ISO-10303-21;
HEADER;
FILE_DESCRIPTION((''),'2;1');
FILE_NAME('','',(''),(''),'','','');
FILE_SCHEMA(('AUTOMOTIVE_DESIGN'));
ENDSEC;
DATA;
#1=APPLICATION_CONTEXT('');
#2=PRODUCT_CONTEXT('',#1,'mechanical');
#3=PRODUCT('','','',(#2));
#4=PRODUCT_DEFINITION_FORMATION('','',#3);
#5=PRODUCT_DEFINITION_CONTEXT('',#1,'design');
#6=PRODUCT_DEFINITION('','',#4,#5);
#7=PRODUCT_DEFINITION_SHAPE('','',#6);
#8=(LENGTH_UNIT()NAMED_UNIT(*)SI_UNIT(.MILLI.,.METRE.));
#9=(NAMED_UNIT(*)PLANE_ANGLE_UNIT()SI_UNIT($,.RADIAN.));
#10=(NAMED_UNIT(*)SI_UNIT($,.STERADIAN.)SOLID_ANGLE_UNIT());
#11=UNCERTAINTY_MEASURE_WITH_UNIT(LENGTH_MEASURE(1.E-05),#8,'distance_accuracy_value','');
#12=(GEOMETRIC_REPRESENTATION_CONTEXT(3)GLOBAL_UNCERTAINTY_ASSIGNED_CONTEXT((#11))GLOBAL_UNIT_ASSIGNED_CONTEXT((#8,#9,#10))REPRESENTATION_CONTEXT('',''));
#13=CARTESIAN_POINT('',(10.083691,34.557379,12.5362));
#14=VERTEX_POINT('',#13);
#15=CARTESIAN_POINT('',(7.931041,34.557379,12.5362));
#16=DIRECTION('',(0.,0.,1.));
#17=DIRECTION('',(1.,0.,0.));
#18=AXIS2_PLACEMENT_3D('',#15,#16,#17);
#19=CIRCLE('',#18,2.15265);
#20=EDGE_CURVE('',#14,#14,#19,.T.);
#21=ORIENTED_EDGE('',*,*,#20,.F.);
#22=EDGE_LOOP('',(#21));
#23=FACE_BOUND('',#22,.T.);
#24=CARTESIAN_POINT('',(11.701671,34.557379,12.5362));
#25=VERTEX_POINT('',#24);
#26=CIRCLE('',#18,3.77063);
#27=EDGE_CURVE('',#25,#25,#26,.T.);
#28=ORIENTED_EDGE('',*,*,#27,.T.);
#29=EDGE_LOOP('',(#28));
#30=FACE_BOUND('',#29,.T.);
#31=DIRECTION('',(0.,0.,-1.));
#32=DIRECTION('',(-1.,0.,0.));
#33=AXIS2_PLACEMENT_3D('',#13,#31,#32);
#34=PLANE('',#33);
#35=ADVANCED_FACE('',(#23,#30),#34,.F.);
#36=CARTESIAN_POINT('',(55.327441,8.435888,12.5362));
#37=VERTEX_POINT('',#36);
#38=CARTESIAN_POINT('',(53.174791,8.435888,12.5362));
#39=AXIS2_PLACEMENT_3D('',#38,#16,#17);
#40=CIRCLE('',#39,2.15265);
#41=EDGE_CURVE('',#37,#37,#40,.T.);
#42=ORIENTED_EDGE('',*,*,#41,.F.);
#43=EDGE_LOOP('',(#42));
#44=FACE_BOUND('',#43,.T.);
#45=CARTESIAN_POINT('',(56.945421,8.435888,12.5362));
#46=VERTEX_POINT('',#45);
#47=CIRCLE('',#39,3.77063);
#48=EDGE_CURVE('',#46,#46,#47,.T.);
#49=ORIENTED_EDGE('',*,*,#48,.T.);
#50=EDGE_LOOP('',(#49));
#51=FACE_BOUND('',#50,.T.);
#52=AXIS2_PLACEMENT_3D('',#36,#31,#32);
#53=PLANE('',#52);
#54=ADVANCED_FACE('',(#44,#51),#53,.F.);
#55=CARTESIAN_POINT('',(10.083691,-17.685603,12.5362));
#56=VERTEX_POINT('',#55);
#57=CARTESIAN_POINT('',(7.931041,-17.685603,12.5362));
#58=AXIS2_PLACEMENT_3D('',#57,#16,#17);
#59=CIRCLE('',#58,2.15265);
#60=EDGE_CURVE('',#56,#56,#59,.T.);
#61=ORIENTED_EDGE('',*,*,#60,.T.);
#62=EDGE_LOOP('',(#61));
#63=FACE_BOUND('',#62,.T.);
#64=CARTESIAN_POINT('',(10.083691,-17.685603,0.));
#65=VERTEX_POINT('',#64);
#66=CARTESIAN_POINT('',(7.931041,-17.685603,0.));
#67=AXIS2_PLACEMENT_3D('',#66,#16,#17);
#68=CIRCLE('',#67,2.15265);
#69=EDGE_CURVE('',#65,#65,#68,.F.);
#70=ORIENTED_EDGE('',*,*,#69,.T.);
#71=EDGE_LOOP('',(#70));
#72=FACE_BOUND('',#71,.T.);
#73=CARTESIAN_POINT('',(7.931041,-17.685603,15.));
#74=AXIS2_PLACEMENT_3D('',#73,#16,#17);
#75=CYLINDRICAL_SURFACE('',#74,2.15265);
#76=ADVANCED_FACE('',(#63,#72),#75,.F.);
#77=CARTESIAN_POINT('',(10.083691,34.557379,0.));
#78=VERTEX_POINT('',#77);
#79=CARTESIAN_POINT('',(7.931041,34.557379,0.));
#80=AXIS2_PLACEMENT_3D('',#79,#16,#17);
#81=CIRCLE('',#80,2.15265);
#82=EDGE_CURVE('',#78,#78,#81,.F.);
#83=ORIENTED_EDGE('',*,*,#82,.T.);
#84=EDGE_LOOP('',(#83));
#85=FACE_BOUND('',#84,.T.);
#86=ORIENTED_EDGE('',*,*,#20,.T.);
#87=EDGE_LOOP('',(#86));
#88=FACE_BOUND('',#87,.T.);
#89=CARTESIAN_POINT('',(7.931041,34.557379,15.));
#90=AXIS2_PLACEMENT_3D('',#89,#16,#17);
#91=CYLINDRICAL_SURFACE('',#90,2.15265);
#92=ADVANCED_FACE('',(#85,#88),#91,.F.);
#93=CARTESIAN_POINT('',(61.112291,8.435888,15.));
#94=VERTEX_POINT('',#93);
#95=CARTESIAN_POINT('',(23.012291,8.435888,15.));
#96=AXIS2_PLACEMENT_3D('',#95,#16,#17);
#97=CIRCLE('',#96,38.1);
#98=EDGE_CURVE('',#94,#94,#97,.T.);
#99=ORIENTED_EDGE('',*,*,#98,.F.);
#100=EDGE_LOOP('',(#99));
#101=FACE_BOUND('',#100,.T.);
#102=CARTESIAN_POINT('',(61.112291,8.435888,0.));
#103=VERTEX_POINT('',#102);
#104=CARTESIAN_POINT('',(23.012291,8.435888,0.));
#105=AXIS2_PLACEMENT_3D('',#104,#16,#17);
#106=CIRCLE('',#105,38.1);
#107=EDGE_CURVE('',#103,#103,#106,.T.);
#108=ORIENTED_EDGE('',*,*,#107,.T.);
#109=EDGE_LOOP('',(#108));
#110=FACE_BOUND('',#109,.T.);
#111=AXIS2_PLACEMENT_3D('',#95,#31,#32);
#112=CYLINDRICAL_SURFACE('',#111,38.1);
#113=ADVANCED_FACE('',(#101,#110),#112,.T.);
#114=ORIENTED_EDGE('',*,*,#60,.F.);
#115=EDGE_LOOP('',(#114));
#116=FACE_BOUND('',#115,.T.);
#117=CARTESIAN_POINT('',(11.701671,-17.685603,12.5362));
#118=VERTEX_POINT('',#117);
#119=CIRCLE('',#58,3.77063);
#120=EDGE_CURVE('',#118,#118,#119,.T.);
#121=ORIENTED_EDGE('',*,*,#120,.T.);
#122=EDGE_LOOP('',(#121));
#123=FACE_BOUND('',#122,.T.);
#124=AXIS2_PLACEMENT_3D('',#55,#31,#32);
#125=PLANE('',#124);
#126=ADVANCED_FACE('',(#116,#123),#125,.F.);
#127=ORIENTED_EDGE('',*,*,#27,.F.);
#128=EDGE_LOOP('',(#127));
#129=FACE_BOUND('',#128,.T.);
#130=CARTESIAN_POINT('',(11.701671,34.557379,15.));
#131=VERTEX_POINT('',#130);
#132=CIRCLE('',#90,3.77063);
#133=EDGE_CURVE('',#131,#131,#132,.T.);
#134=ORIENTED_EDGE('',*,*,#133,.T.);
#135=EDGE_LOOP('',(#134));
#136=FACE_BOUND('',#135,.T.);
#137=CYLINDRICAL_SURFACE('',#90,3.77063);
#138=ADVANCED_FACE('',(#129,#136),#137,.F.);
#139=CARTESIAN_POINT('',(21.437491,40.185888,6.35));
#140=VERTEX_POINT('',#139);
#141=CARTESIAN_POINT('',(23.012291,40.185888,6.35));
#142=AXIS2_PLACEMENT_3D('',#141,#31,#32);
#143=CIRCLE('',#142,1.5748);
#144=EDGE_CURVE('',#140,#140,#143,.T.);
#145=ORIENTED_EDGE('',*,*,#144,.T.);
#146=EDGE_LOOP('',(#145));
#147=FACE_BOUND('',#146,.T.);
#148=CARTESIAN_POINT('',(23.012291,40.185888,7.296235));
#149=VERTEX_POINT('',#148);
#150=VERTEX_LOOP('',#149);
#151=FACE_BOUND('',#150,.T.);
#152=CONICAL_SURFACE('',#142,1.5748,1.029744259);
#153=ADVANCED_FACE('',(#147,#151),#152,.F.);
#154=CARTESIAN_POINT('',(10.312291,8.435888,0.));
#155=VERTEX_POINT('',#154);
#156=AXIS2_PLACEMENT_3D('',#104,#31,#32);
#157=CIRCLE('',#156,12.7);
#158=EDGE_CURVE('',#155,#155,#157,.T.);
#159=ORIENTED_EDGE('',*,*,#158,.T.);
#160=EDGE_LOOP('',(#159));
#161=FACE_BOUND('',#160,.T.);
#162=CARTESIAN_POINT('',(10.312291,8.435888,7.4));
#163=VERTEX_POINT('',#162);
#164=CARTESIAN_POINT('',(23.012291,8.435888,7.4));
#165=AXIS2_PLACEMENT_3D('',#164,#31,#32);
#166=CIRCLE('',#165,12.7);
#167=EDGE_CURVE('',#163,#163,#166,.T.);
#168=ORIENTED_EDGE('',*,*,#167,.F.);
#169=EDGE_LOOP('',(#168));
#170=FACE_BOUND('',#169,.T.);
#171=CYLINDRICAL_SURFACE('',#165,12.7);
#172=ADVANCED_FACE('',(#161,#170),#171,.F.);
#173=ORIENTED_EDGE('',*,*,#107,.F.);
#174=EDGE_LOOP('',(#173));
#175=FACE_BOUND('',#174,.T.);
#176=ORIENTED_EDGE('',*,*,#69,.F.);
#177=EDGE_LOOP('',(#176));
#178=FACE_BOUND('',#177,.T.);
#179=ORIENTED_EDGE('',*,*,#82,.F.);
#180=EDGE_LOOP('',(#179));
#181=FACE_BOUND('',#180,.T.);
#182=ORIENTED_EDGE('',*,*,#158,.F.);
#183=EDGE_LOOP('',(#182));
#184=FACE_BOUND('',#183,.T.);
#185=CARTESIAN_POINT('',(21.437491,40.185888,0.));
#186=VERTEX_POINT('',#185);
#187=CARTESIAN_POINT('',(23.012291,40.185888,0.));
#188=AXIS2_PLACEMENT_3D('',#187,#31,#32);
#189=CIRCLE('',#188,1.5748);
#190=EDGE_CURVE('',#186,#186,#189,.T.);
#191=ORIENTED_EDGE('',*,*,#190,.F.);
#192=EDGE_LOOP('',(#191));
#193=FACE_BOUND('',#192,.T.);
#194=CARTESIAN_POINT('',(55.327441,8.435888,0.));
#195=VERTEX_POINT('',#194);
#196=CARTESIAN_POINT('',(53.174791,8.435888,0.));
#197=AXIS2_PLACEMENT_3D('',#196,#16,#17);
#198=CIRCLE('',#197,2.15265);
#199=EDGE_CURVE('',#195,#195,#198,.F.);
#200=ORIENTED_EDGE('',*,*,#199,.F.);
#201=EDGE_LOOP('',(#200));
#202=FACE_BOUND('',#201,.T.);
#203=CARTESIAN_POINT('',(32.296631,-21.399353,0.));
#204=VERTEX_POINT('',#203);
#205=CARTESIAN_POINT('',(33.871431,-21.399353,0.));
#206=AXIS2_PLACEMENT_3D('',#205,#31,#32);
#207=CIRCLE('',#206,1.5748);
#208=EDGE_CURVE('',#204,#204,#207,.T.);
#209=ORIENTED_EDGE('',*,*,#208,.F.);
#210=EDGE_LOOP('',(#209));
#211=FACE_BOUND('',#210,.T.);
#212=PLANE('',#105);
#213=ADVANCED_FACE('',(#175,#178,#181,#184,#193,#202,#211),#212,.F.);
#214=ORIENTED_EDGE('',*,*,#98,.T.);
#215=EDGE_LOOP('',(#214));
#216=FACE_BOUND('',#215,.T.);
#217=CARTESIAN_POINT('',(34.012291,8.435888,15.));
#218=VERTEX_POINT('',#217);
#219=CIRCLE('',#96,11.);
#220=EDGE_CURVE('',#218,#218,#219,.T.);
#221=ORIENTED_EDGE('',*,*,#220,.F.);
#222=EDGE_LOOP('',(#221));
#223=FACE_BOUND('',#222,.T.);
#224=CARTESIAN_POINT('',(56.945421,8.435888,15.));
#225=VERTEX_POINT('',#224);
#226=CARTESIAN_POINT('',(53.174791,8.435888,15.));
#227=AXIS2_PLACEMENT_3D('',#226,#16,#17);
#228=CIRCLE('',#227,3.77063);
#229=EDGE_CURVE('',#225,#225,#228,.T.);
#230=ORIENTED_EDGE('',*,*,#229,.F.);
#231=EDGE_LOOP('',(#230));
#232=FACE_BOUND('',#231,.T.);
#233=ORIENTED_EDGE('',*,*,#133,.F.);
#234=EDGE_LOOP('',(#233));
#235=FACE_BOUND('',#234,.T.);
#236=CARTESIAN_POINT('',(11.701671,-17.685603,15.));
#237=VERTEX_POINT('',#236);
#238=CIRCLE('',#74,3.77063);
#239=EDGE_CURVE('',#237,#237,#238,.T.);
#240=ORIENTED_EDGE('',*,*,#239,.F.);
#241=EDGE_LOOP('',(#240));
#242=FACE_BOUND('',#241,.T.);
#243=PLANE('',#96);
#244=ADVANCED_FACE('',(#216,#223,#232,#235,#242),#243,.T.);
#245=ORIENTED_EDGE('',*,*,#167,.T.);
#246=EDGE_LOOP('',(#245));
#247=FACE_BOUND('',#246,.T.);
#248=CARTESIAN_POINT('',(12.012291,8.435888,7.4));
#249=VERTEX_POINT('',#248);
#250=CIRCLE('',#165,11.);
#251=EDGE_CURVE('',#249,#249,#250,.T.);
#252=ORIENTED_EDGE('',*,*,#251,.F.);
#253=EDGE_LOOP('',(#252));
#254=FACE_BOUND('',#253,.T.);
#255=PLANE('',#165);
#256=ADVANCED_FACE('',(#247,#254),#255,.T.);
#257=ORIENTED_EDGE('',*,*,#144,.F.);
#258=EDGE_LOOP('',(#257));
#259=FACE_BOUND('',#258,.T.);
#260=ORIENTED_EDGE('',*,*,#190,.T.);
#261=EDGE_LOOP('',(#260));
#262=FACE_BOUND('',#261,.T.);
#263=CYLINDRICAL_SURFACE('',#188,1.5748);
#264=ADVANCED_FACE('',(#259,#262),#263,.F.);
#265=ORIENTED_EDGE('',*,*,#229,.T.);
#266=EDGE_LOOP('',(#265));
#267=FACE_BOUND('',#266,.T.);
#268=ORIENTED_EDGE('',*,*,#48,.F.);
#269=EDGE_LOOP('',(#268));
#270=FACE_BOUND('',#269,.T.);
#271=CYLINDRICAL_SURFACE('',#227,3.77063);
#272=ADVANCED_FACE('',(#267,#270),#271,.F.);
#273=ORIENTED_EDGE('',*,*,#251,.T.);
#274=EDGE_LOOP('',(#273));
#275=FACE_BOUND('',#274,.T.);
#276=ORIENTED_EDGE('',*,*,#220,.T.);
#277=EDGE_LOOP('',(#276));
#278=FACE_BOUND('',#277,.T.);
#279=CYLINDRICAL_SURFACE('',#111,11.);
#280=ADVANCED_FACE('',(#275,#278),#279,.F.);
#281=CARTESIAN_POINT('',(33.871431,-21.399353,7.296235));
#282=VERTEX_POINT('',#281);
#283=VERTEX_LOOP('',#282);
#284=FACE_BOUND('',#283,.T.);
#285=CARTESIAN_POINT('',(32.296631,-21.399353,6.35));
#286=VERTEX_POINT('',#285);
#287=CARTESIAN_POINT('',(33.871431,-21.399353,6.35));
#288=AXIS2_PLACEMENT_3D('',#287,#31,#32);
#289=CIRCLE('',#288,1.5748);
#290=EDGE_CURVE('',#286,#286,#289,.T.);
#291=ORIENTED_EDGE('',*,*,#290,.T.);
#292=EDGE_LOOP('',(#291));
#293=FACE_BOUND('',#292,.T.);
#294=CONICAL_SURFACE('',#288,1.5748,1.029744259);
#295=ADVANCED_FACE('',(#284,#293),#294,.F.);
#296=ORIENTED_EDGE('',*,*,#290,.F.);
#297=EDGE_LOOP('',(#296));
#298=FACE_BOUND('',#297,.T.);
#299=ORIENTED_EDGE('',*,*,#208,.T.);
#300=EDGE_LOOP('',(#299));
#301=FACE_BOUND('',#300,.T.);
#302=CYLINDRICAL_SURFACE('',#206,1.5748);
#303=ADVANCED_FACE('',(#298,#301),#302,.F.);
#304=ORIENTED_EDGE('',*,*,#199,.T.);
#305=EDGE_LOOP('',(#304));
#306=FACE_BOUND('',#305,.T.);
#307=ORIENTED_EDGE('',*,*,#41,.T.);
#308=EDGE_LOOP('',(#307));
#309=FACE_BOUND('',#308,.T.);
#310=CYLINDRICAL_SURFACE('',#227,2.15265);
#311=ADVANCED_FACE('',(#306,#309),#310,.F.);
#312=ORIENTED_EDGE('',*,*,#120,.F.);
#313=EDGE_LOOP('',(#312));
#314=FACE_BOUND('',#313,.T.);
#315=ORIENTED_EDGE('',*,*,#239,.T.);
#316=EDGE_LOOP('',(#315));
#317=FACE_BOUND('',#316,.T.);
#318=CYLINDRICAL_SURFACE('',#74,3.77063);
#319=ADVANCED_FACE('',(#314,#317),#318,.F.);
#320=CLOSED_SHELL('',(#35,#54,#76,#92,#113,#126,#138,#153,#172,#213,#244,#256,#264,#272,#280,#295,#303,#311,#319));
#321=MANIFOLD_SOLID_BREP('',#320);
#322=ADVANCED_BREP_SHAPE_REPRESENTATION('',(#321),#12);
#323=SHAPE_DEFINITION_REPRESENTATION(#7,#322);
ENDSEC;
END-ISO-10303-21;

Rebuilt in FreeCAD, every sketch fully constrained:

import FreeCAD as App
import Part
import Sketcher

V = App.Vector
Q = App.Units.Quantity

doc = App.newDocument("Part")
body = doc.addObject("PartDesign::Body", "Body")

sketch1 = body.newObject("Sketcher::SketchObject", "Sketch")
sketch1.AttachmentSupport = (doc.getObject("XY_Plane"), [""])
sketch1.MapMode = "FlatFace"
sketch1.addGeometry([
    Part.Circle(V(23.012291, 8.435888, 0), V(0, 0, 1), 38.1),
    Part.Circle(V(23.012291, 8.435888, 0), V(0, 0, 1), 11),
], False)
sketch1.addConstraint([
    Sketcher.Constraint("Coincident", 1, 3, 0, 3),
    Sketcher.Constraint("Diameter", 0, Q("3 in")),
    Sketcher.Constraint("Diameter", 1, 22.0),
    Sketcher.Constraint("DistanceX", -1, 1, 0, 3, 23.012291),
    Sketcher.Constraint("DistanceY", -1, 1, 0, 3, 8.435888),
])
pad1 = body.newObject("PartDesign::Pad", "Pad")
pad1.Profile = sketch1
pad1.Length = 15

sketch2 = body.newObject("Sketcher::SketchObject", "Sketch001")
sketch2.AttachmentSupport = (doc.getObject("XY_Plane"), [""])
sketch2.MapMode = "FlatFace"
sketch2.addGeometry(Part.Circle(V(23.012291, 8.435888, 0), V(0, 0, 1), 12.7), False)
sketch2.addConstraint([
    Sketcher.Constraint("Diameter", 0, Q("1 in")),
    Sketcher.Constraint("DistanceX", -1, 1, 0, 3, 23.012291),
    Sketcher.Constraint("DistanceY", -1, 1, 0, 3, 8.435888),
])
pocket1 = body.newObject("PartDesign::Pocket", "Pocket")
pocket1.Profile = sketch2
pocket1.Length = 7.4
pocket1.Reversed = True

sketch3 = body.newObject("Sketcher::SketchObject", "Sketch002")
sketch3.AttachmentSupport = (doc.getObject("XY_Plane"), [""])
sketch3.MapMode = "FlatFace"
sketch3.AttachmentOffset = App.Placement(V(0, 0, 15), App.Rotation())
sketch3.addGeometry([
    Part.Circle(V(7.931041, 34.557379, 0), V(0, 0, 1), 2.15265),
    Part.Circle(V(53.174791, 8.435888, 0), V(0, 0, 1), 2.15265),
    Part.Circle(V(7.931041, -17.685603, 0), V(0, 0, 1), 2.15265),
], False)
sketch3.addConstraint([
    Sketcher.Constraint("Equal", 0, 1),
    Sketcher.Constraint("Equal", 1, 2),
    Sketcher.Constraint("Vertical", 0, 3, 2, 3),
    Sketcher.Constraint("Diameter", 0, Q("0.1695 in")),
    Sketcher.Constraint("DistanceX", 0, 3, 1, 3, Q("1.78125 in")),
    Sketcher.Constraint("DistanceX", -1, 1, 0, 3, 7.931041),
    Sketcher.Constraint("DistanceY", -1, 1, 0, 3, 34.557379),
    Sketcher.Constraint("DistanceY", 1, 3, 0, 3, 26.121491),
    Sketcher.Constraint("DistanceY", 2, 3, 1, 3, 26.121491),
])
doc.recompute()
hole = body.newObject("PartDesign::Hole", "Hole")
hole.Profile = sketch3
hole.ThreadType = "None"
hole.Diameter = Q("0.1695 in")
hole.DepthType = "Dimension"
hole.Depth = 15
hole.DrillPoint = "Angled"
hole.DrillPointAngle = 118
hole.HoleCutType = "Counterbore"
hole.HoleCutDiameter = Q("0.2969 in")
hole.HoleCutDepth = Q("0.097 in")

sketch4 = body.newObject("Sketcher::SketchObject", "Sketch003")
sketch4.AttachmentSupport = (doc.getObject("XY_Plane"), [""])
sketch4.MapMode = "FlatFace"
sketch4.addGeometry([
    Part.Circle(V(23.012291, 40.185888, 0), V(0, 0, 1), 1.5748),
    Part.Circle(V(33.871431, -21.399353, 0), V(0, 0, 1), 1.5748),
], False)
sketch4.addConstraint([
    Sketcher.Constraint("Equal", 0, 1),
    Sketcher.Constraint("Diameter", 0, Q("0.124 in")),
    Sketcher.Constraint("DistanceX", -1, 1, 0, 3, 23.012291),
    Sketcher.Constraint("DistanceX", -1, 1, 1, 3, 33.871431),
    Sketcher.Constraint("DistanceY", 1, 3, 0, 3, 61.585241),
    Sketcher.Constraint("DistanceY", -1, 1, 0, 3, 40.185888),
])
doc.recompute()
hole2 = body.newObject("PartDesign::Hole", "Hole001")
hole2.Profile = sketch4
hole2.ThreadType = "None"
hole2.Diameter = Q("0.124 in")
hole2.DepthType = "Dimension"
hole2.Depth = Q("0.25 in")
hole2.DrillPoint = "Angled"
hole2.DrillPointAngle = 118
hole2.Reversed = True

doc.recompute()
